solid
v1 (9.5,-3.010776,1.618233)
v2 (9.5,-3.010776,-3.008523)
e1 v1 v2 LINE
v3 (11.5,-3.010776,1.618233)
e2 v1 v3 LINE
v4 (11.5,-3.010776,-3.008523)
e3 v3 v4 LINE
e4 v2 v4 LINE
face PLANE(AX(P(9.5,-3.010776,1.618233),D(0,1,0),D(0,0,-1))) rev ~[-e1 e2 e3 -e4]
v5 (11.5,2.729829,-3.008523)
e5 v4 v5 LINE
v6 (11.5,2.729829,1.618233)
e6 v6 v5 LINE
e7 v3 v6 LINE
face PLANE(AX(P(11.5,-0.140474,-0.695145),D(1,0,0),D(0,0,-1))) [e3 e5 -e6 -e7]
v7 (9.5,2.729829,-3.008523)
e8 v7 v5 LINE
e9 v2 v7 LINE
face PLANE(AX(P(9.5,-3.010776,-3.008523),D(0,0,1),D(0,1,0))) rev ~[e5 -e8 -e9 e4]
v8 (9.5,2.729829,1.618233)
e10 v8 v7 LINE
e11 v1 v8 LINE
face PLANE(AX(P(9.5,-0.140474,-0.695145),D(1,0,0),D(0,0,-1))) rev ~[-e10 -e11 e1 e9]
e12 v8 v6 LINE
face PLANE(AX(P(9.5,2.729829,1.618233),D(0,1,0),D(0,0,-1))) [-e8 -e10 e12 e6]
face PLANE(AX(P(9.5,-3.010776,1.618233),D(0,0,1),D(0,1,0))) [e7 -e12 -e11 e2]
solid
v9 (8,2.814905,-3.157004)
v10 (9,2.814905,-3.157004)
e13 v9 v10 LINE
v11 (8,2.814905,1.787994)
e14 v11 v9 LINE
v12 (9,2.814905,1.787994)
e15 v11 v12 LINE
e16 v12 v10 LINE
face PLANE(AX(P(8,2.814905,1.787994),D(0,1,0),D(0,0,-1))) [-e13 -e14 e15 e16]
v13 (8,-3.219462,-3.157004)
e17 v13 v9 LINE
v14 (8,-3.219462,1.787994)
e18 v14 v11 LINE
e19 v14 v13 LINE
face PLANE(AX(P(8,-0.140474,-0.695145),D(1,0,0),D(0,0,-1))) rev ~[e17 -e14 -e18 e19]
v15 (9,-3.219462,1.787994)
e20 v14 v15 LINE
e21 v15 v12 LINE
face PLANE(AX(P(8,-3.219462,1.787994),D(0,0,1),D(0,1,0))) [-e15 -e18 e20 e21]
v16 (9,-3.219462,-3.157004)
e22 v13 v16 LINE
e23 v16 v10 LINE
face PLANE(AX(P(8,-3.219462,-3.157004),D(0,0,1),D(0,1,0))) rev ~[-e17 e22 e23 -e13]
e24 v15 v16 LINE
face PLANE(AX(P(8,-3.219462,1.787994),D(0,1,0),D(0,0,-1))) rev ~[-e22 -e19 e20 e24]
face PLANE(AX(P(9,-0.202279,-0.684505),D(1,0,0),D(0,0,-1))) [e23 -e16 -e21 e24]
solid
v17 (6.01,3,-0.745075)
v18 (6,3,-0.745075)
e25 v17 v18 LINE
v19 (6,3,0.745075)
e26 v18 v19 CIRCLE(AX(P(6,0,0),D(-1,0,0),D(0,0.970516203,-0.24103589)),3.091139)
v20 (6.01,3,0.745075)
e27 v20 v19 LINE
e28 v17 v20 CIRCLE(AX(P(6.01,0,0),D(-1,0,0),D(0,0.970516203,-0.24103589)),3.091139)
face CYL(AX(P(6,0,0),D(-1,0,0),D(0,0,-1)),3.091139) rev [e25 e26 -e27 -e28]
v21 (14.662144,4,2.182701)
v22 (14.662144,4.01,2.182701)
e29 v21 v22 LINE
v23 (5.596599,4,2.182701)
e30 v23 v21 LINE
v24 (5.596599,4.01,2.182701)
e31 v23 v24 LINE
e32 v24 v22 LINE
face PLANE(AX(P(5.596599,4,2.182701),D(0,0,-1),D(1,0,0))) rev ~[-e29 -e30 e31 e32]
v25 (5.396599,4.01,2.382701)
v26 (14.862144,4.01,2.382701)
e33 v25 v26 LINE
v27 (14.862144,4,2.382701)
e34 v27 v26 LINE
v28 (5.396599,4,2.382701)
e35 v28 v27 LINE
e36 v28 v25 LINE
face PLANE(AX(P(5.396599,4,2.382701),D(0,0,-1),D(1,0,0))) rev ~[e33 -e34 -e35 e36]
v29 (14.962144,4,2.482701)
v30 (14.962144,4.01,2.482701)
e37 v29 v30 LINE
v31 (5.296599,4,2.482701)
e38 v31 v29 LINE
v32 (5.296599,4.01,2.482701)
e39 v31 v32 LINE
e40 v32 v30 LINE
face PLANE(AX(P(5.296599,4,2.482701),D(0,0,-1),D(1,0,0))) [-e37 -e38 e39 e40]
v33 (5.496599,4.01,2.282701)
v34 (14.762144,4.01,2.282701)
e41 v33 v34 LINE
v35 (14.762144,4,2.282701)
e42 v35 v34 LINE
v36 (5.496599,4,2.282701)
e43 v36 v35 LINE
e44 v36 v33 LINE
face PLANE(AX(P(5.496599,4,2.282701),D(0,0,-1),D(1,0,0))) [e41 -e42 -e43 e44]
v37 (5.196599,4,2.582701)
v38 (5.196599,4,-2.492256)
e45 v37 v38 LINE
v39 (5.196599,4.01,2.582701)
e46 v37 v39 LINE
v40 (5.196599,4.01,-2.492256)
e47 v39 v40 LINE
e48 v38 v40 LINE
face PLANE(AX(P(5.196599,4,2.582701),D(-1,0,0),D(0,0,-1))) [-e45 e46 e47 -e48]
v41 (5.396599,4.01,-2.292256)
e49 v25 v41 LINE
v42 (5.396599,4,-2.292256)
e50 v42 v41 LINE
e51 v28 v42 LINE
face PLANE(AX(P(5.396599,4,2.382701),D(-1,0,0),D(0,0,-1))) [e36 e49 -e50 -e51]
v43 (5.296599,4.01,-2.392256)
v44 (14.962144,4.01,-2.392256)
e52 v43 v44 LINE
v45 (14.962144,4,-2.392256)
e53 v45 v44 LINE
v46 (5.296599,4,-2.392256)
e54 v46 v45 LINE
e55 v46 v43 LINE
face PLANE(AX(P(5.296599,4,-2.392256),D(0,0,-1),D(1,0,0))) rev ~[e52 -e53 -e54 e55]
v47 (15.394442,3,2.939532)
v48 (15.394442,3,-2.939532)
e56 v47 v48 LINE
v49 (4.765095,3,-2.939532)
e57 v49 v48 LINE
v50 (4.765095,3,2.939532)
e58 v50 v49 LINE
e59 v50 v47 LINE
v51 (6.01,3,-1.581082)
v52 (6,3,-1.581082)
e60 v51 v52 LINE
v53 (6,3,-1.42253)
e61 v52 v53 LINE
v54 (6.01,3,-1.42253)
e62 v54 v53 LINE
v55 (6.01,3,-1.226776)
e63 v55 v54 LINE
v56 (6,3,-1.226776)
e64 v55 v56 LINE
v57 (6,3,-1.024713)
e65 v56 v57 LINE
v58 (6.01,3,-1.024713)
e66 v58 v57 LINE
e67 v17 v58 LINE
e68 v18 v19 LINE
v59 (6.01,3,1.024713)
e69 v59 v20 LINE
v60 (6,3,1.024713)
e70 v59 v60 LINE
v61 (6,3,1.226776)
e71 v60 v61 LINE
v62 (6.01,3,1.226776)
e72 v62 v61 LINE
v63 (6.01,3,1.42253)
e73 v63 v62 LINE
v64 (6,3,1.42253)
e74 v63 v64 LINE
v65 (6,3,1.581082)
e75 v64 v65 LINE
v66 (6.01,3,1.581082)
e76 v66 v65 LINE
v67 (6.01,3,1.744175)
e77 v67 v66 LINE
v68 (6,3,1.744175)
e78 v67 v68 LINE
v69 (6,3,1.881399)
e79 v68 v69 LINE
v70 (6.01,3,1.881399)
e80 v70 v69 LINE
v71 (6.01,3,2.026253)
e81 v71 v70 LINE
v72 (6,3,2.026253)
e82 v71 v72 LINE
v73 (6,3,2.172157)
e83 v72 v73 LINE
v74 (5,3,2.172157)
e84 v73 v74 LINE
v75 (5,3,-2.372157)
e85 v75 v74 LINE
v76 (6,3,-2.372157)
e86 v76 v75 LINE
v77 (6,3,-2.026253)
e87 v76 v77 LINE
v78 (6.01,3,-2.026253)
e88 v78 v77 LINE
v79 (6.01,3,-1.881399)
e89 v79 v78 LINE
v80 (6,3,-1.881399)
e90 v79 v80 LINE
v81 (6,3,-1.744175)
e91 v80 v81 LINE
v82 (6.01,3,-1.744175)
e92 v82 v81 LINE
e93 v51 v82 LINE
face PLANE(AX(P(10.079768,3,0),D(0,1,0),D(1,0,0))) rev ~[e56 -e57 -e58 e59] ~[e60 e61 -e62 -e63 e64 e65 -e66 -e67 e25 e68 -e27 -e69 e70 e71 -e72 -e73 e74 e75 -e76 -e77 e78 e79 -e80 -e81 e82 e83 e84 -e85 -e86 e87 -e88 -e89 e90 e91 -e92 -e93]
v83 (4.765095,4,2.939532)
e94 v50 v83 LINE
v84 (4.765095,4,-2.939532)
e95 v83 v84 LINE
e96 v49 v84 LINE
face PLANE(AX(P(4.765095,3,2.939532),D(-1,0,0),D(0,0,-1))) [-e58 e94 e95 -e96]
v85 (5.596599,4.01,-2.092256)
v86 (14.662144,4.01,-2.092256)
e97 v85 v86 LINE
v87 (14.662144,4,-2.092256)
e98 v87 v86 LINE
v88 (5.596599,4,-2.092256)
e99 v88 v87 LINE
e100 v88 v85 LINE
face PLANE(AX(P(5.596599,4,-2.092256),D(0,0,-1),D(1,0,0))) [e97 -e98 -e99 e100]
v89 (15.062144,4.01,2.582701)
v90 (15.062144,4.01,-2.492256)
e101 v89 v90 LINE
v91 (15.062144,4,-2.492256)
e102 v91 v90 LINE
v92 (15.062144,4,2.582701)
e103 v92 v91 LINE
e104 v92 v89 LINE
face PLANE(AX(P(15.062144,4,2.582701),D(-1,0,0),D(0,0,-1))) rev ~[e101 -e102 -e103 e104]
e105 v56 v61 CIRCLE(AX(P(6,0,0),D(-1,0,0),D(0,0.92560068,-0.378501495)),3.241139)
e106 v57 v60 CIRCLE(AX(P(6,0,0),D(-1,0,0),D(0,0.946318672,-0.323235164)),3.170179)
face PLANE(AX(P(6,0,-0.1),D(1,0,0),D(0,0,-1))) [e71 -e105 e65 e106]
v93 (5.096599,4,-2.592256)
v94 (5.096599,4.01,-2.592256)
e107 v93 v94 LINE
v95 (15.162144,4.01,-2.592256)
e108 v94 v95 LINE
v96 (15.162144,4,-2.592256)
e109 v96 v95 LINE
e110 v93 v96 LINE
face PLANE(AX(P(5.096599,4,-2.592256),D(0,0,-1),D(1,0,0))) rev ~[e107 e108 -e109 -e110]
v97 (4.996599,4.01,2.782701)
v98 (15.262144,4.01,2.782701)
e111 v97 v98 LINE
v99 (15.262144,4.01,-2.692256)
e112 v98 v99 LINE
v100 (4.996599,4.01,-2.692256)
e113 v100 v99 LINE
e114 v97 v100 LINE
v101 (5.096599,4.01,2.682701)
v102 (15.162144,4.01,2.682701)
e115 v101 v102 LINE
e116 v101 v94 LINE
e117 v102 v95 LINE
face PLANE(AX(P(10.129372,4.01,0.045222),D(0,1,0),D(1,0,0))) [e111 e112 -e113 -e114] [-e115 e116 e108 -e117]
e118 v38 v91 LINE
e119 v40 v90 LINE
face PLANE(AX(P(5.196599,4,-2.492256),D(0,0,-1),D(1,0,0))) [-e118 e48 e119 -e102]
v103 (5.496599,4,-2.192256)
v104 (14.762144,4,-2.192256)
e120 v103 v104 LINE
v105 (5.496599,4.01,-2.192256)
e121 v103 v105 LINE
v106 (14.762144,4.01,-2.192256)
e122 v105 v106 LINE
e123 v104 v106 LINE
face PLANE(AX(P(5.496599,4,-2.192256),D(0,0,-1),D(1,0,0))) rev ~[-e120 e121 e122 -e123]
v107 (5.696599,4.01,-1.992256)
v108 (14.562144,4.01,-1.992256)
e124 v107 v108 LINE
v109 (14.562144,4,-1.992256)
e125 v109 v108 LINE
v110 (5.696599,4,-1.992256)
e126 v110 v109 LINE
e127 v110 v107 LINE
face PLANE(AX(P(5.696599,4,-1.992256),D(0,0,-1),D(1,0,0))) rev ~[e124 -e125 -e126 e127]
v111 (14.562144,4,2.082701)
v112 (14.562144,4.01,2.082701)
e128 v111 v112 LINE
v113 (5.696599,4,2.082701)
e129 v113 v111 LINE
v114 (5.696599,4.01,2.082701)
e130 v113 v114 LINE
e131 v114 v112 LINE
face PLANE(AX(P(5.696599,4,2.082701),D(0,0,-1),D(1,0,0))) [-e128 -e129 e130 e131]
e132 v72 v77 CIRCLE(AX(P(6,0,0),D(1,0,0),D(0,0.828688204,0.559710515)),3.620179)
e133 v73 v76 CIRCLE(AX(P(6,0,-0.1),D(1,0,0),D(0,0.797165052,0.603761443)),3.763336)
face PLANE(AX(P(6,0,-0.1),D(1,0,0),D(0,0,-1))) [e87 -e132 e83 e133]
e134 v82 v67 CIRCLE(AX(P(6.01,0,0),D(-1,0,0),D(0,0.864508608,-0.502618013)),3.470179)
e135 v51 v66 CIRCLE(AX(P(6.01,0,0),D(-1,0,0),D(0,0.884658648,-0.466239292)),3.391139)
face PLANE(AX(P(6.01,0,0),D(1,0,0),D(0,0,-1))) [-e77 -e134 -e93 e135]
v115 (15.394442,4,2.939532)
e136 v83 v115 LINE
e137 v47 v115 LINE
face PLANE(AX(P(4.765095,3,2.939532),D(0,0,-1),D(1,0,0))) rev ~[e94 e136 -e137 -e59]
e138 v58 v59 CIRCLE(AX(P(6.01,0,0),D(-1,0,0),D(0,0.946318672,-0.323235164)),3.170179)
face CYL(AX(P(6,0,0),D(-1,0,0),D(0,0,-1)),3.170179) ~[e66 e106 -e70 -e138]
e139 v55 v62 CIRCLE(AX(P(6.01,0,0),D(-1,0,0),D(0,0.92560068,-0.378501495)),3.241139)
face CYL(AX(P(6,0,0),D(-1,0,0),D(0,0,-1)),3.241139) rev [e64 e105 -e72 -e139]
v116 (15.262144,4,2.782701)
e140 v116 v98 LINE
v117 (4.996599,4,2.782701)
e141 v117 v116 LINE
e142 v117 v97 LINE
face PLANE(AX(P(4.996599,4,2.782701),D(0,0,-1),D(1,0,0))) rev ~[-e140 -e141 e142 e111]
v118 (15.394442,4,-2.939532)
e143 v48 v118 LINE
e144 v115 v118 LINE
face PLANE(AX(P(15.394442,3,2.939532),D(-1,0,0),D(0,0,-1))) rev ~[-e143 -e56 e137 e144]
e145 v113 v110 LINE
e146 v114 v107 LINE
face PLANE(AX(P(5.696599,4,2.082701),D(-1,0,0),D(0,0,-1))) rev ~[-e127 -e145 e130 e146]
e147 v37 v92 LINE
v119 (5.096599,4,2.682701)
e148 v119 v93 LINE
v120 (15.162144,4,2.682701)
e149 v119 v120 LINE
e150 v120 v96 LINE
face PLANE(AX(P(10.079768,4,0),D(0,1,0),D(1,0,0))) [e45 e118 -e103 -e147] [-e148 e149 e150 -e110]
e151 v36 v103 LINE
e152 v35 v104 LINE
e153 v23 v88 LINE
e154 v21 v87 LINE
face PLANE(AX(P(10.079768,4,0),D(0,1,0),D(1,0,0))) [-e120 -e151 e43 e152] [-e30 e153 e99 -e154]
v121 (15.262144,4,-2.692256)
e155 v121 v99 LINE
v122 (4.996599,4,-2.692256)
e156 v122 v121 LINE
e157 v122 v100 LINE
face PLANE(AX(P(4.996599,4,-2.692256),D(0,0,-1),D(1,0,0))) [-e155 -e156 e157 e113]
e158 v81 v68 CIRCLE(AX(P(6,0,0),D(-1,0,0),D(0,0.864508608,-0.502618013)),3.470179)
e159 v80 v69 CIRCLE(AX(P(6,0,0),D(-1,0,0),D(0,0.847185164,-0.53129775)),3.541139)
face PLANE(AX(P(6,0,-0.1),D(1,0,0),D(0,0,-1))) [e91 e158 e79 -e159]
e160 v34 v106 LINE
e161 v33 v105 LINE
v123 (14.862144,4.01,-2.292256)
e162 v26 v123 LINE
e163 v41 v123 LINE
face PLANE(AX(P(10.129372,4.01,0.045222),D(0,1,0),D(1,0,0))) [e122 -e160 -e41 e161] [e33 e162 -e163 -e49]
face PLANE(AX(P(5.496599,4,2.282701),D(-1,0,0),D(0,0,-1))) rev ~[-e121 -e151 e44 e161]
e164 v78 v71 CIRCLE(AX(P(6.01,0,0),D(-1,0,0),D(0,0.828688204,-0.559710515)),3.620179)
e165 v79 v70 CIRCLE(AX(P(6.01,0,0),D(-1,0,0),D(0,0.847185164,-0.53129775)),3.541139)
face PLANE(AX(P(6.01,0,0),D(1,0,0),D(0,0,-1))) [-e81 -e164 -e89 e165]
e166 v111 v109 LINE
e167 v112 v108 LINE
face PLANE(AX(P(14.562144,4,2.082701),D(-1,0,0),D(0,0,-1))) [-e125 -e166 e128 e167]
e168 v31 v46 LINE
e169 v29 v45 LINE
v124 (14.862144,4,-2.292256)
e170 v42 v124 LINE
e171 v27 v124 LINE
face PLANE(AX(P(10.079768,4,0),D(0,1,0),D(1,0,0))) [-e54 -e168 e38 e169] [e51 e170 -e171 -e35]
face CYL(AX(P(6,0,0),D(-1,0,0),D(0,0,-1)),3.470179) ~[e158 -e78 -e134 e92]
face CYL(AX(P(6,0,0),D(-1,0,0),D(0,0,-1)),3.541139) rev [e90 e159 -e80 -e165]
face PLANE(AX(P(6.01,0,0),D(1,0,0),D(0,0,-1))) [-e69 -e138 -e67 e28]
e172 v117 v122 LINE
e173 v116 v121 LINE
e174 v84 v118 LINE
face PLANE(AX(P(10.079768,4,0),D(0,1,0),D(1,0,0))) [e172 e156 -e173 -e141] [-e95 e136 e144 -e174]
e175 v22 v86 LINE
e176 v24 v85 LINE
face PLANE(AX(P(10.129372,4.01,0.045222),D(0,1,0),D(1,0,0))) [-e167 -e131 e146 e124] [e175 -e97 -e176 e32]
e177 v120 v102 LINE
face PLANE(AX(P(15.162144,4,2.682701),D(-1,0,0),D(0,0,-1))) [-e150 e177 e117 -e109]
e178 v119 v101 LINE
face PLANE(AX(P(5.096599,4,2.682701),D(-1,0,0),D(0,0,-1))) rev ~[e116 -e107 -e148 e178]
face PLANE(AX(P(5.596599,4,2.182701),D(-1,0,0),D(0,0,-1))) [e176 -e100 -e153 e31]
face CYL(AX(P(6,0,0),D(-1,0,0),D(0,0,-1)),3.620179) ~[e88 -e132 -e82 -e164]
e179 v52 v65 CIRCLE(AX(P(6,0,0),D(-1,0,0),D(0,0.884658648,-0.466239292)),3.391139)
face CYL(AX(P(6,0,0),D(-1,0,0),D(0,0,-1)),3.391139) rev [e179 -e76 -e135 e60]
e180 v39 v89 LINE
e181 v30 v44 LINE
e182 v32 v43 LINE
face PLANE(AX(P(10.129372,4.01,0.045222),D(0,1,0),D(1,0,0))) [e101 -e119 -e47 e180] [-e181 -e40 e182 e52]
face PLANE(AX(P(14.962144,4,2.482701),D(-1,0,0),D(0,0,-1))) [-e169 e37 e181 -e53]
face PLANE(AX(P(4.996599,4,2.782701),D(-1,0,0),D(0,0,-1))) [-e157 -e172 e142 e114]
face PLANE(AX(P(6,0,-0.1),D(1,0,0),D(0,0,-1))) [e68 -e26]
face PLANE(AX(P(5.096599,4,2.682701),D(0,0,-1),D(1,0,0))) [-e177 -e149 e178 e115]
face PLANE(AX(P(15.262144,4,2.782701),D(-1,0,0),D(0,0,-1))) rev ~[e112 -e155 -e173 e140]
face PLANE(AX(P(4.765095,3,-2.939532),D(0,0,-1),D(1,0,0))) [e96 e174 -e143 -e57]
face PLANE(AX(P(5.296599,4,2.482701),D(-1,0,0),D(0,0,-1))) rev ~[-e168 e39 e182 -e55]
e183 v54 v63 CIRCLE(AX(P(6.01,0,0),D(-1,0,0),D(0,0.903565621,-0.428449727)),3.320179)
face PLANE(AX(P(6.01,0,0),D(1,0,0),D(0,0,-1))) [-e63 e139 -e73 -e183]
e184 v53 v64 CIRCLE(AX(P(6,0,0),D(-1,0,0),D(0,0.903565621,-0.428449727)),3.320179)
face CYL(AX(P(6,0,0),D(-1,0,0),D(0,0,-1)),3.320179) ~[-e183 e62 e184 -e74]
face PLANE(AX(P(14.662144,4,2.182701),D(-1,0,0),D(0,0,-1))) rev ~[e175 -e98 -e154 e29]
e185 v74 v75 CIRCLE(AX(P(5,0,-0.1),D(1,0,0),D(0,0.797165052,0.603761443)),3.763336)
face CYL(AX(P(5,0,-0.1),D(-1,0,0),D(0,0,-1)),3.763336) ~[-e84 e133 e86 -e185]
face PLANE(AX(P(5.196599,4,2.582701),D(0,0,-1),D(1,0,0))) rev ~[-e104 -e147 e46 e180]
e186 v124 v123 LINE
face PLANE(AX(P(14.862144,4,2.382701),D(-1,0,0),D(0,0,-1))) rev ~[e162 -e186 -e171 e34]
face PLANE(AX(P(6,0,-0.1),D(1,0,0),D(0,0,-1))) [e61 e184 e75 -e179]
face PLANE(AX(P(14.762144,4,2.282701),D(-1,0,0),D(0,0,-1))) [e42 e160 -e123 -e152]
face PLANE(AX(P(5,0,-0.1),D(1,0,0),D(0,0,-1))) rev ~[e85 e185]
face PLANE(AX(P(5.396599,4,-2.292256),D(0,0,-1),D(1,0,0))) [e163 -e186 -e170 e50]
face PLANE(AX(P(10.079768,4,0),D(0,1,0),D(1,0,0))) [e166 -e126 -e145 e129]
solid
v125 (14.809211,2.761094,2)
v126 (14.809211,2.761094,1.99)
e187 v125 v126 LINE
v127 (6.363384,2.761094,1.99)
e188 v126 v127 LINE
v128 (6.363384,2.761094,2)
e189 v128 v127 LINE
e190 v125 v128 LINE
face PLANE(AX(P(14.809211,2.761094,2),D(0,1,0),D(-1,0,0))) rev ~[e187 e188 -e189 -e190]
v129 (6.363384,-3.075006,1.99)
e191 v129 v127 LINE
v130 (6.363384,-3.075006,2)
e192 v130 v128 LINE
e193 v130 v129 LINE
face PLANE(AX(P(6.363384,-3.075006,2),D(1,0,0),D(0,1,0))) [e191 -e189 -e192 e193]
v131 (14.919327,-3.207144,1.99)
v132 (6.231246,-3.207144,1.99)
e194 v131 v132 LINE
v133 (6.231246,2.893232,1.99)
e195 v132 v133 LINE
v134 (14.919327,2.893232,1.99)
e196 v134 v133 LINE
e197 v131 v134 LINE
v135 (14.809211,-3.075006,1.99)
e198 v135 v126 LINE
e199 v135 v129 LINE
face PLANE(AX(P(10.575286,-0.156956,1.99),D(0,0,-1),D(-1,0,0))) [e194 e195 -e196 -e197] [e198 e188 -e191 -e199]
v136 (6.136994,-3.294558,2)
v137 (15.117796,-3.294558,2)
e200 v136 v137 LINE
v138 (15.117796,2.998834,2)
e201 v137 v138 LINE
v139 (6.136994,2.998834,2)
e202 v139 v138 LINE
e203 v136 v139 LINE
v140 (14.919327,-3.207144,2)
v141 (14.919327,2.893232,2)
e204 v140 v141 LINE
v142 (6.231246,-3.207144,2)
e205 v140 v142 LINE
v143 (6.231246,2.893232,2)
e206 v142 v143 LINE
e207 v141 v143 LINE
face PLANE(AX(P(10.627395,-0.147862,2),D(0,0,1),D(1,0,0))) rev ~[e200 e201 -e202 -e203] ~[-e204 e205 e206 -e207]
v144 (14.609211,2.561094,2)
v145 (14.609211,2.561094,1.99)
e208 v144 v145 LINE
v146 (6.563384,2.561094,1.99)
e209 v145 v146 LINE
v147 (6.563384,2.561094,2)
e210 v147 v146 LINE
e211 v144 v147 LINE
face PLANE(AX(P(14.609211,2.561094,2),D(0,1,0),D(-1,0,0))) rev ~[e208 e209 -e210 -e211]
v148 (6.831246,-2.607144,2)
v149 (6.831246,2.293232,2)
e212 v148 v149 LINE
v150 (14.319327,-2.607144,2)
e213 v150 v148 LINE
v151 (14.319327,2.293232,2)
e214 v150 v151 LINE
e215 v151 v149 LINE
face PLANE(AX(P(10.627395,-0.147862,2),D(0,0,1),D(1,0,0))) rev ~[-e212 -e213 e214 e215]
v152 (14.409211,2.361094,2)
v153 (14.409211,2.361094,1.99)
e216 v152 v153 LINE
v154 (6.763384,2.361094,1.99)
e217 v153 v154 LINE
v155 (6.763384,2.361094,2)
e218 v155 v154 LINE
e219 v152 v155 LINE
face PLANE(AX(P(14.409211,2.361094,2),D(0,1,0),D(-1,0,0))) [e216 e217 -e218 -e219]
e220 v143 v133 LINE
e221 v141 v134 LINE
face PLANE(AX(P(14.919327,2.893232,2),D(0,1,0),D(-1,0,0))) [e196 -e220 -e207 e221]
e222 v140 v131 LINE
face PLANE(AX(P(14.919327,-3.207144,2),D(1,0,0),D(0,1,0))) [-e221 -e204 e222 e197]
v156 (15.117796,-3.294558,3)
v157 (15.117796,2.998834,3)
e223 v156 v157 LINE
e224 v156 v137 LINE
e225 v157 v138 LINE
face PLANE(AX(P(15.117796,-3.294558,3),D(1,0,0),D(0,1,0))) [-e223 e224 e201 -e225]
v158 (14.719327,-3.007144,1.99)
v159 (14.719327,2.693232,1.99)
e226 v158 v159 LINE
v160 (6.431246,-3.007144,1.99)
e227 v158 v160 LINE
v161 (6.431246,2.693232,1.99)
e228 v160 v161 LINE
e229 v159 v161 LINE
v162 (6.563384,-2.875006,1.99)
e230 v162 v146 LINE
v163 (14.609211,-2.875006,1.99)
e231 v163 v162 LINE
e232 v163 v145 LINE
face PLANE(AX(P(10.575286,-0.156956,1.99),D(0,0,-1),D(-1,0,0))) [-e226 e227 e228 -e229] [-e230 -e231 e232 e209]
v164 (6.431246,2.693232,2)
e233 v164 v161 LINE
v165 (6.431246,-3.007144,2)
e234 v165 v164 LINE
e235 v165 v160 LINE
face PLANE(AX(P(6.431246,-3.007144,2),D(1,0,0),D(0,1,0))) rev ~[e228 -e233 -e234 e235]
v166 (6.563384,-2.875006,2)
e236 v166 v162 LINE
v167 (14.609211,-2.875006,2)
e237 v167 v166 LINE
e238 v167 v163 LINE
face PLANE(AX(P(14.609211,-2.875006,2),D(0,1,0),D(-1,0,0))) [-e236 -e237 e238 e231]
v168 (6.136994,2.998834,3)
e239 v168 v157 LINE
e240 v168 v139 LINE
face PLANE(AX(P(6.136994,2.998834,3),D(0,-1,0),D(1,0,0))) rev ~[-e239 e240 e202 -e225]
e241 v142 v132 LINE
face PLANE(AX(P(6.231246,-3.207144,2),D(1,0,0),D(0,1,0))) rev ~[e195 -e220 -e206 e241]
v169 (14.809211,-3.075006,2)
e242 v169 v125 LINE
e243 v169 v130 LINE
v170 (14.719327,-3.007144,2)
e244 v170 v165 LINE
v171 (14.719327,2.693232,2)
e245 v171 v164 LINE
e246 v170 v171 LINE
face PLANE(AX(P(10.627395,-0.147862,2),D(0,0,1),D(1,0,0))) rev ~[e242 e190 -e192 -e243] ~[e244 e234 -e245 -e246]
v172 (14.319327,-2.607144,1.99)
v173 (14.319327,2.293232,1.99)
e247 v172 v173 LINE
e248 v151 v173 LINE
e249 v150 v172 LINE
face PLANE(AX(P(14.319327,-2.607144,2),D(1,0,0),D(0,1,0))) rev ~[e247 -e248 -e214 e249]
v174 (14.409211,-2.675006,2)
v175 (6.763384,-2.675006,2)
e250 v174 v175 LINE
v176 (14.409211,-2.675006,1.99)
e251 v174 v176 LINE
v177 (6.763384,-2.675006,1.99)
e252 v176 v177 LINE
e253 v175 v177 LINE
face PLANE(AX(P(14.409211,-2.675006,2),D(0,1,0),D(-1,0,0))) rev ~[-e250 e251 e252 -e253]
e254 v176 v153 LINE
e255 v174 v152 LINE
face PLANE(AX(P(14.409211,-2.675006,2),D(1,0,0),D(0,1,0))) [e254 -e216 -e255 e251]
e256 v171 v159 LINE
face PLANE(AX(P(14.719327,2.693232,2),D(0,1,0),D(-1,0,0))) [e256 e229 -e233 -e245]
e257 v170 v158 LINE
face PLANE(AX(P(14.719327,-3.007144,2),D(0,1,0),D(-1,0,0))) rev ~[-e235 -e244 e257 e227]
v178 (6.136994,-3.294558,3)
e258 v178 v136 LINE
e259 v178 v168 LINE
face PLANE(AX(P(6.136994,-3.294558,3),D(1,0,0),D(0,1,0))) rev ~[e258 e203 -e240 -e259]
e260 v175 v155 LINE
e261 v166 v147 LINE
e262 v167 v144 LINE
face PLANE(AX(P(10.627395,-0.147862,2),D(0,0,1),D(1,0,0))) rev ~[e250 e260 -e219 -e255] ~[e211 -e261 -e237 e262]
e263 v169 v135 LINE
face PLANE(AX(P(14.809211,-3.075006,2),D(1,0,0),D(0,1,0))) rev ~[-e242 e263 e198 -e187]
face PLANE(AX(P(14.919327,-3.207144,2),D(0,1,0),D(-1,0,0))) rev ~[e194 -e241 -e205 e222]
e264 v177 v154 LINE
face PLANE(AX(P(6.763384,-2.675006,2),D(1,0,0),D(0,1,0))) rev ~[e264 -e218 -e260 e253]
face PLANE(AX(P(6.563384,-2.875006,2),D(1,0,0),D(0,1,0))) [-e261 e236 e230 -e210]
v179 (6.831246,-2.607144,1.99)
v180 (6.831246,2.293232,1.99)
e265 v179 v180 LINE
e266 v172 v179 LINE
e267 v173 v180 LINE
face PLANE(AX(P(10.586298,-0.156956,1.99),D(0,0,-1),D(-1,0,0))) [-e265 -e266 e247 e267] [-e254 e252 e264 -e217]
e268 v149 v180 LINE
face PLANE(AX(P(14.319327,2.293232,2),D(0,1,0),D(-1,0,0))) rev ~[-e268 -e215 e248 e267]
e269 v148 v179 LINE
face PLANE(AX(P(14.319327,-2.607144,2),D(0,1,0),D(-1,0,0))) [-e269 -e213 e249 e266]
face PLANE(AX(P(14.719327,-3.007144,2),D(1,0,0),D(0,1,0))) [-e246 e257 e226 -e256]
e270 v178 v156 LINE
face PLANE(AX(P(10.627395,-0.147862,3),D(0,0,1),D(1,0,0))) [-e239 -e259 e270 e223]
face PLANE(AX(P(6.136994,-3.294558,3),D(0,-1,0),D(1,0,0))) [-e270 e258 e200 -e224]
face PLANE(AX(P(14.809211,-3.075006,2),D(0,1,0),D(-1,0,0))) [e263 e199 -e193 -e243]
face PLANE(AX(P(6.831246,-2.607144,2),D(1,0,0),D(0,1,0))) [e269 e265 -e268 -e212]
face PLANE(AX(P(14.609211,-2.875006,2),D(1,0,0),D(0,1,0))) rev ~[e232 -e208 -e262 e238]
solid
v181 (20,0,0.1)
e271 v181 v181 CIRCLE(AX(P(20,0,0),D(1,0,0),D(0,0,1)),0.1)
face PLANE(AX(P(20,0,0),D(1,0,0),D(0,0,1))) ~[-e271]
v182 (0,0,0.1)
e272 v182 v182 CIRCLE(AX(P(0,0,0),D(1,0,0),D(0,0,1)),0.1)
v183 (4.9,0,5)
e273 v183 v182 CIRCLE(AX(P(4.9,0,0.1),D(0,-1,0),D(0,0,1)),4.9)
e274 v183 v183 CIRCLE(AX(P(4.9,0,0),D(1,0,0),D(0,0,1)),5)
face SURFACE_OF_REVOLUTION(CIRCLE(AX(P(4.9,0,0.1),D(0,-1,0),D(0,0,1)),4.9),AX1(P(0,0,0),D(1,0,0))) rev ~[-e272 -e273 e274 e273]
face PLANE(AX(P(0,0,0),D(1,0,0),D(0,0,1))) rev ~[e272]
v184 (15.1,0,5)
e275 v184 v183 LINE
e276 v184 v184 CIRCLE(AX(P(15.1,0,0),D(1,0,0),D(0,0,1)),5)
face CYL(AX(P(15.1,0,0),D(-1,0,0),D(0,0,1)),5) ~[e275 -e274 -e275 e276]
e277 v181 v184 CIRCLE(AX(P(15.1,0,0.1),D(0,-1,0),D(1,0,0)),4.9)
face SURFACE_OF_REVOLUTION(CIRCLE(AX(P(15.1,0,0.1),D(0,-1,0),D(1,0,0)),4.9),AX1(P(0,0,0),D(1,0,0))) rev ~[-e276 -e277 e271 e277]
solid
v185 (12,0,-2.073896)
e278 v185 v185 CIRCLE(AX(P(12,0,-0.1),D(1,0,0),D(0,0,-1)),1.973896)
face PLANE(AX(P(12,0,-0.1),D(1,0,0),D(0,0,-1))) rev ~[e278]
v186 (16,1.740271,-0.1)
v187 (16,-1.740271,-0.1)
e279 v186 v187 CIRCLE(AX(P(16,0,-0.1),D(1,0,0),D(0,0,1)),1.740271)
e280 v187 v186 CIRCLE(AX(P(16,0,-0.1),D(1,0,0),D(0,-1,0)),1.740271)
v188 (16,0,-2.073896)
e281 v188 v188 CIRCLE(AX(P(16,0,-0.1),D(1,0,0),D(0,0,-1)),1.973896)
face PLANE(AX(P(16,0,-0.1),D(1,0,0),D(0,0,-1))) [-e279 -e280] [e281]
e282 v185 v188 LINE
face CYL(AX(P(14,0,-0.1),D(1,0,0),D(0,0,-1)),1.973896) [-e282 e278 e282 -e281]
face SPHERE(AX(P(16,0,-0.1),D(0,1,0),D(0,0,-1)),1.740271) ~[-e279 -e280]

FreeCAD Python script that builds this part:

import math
import FreeCAD as App
import Part
import Sketcher
Q = App.Units.Quantity


def add_polygon(sketch, points):
    """Adds a closed chain of lines whose ends are joined by coincident constraints."""
    first, n = sketch.GeometryCount, len(points)
    for a, b in zip(points, points[1:] + points[:1]):
        sketch.addGeometry(Part.LineSegment(App.Vector(*a, 0), App.Vector(*b, 0)), False)
    for i in range(n):
        sketch.addConstraint(Sketcher.Constraint("Coincident", first + i, 2, first + (i + 1) % n, 1))

doc = App.newDocument("Part")
params = doc.addObject("Spreadsheet::Sheet", "Params")
for row, (alias, value) in enumerate([
    ("sketch1_radius", "4.9 mm"),
    ("sketch1_width", "20 mm"),
    ("sketch1_height", "0.1 mm"),
    ("revolution_angle", "360 deg"),
    ("pad1_length", "1 mm"),
    ("pad2_length", "1 mm"),
    ("pad3_length", "0.01 mm"),
    ("pad4_length", "1 mm"),
    ("pad5_length", "0.01 mm"),
    ("pad6_length", "0.01 mm"),
    ("pad7_length", "1 mm"),
    ("pad8_length", "2 mm"),
    ("pad9_length", "4 mm"),
    ("revolution2_angle", "360 deg"),
], start=1):
    params.set(f"A{row}", alias)
    params.set(f"B{row}", "=" + value)
    params.setAlias(f"B{row}", alias)

body = doc.addObject("PartDesign::Body", "Body")

sketch1 = doc.addObject("Sketcher::SketchObject", "Sketch")
body.addObject(sketch1)
sketch1.AttachmentSupport = (doc.XZ_Plane, [""])
sketch1.MapMode = "FlatFace"
sketch1.addGeometry(Part.LineSegment(App.Vector(0, 0, 0), App.Vector(20, 0, 0)), False)
sketch1.addGeometry(Part.LineSegment(App.Vector(20, 0, 0), App.Vector(20, -0.1, 0)), False)
sketch1.addGeometry(Part.ArcOfCircle(Part.Circle(App.Vector(15.1, -0.1, 0), App.Vector(0, 0, 1), 4.9), math.radians(-90), math.radians(0)), False)
sketch1.addGeometry(Part.LineSegment(App.Vector(15.1, -5, 0), App.Vector(4.9, -5, 0)), False)
sketch1.addGeometry(Part.ArcOfCircle(Part.Circle(App.Vector(4.9, -0.1, 0), App.Vector(0, 0, 1), 4.9), math.radians(180), math.radians(270)), False)
sketch1.addGeometry(Part.LineSegment(App.Vector(0, -0.1, 0), App.Vector(0, 0, 0)), False)
sketch1.addConstraint(Sketcher.Constraint("Coincident", 0, 2, 1, 1))
sketch1.addConstraint(Sketcher.Constraint("Tangent", 1, 2, 2, 2))
sketch1.addConstraint(Sketcher.Constraint("Tangent", 2, 1, 3, 1))
sketch1.addConstraint(Sketcher.Constraint("Tangent", 3, 2, 4, 2))
sketch1.addConstraint(Sketcher.Constraint("Tangent", 4, 1, 5, 1))
sketch1.addConstraint(Sketcher.Constraint("Coincident", 5, 2, 0, 1))
sketch1.addConstraint(Sketcher.Constraint("Horizontal", 0))
sketch1.addConstraint(Sketcher.Constraint("Vertical", 1))
sketch1.addConstraint(Sketcher.Constraint("Horizontal", 3))
sketch1.addConstraint(Sketcher.Constraint("Vertical", 5))
sketch1.addConstraint(Sketcher.Constraint("Coincident", 5, 2, -1, 1))
sketch1.addConstraint(Sketcher.Constraint("Equal", 2, 4))
sketch1.addConstraint(Sketcher.Constraint("Radius", 2, Q("4.9 mm")))
sketch1.addConstraint(Sketcher.Constraint("DistanceX", 0, 1, 0, 2, Q("20 mm")))
sketch1.addConstraint(Sketcher.Constraint("DistanceY", 1, 2, 1, 1, Q("0.1 mm")))
sketch1.setExpression("Constraints[12]", "Params.sketch1_radius")
sketch1.setExpression("Constraints[13]", "Params.sketch1_width")
sketch1.setExpression("Constraints[14]", "Params.sketch1_height")
revolution = doc.addObject("PartDesign::Revolution", "Revolution")
body.addObject(revolution)
revolution.Profile = sketch1
revolution.ReferenceAxis = (sketch1, ["H_Axis"])
revolution.setExpression("Angle", "Params.revolution_angle")
body2 = doc.addObject("PartDesign::Body", "Body001")

sketch2 = doc.addObject("Sketcher::SketchObject", "Sketch001")
body2.addObject(sketch2)
sketch2.AttachmentSupport = (doc.getObject("YZ_Plane001"), [""])
sketch2.MapMode = "FlatFace"
sketch2.AttachmentOffset = App.Placement(App.Vector(0, 0, 5), App.Rotation())
sketch2.addGeometry(Part.Circle(App.Vector(0, -0.1, 0), App.Vector(0, 0, 1), 3.8), False)
sketch2.addConstraint(Sketcher.Constraint("PointOnObject", 0, 3, -2))
sketch2.addConstraint(Sketcher.Constraint("DistanceY", 0, 3, -1, 1, Q("0.1 mm")))
sketch2.addConstraint(Sketcher.Constraint("Diameter", 0, Q("7.526672 mm")))
pad1 = doc.addObject("PartDesign::Pad", "Pad")
body2.addObject(pad1)
pad1.Profile = sketch2
pad1.setExpression("Length", "Params.pad1_length")
body3 = doc.addObject("PartDesign::Body", "Body002")

sketch3 = doc.addObject("Sketcher::SketchObject", "Sketch002")
body3.addObject(sketch3)
sketch3.AttachmentSupport = (doc.getObject("XY_Plane002"), [""])
sketch3.MapMode = "FlatFace"
sketch3.AttachmentOffset = App.Placement(App.Vector(0, 0, 3), App.Rotation())
add_polygon(sketch3, [(6, 3), (6, -3), (15, -3), (15, 3)])
sketch3.addConstraint(Sketcher.Constraint("Vertical", 0))
sketch3.addConstraint(Sketcher.Constraint("Horizontal", 1))
sketch3.addConstraint(Sketcher.Constraint("Vertical", 2))
sketch3.addConstraint(Sketcher.Constraint("Horizontal", 3))
sketch3.addConstraint(Sketcher.Constraint("DistanceX", 1, 1, 1, 2, Q("8.980803 mm")))
sketch3.addConstraint(Sketcher.Constraint("DistanceY", 0, 2, 0, 1, Q("6.293392 mm")))
sketch3.addConstraint(Sketcher.Constraint("DistanceX", -1, 1, 0, 2, Q("6.136994 mm")))
sketch3.addConstraint(Sketcher.Constraint("DistanceY", 0, 2, -1, 1, Q("3.294558 mm")))
pad2 = doc.addObject("PartDesign::Pad", "Pad001")
body3.addObject(pad2)
pad2.Profile = sketch3
pad2.setExpression("Length", "Params.pad2_length")
pad2.Reversed = True

sketch4 = doc.addObject("Sketcher::SketchObject", "Sketch003")
body3.addObject(sketch4)
sketch4.AttachmentSupport = (doc.getObject("XY_Plane002"), [""])
sketch4.MapMode = "FlatFace"
sketch4.AttachmentOffset = App.Placement(App.Vector(0, 0, 2), App.Rotation())
add_polygon(sketch4, [(14.9, 2.9), (14.9, -3.2), (6.2, -3.2), (6.2, 2.9)])
add_polygon(sketch4, [(6.4, -3.1), (14.8, -3.1), (14.8, 2.8), (6.4, 2.8)])
add_polygon(sketch4, [(14.7, 2.7), (14.7, -3), (6.4, -3), (6.4, 2.7)])
add_polygon(sketch4, [(6.6, -2.9), (14.6, -2.9), (14.6, 2.6), (6.6, 2.6)])
add_polygon(sketch4, [(14.4, 2.4), (14.4, -2.7), (6.8, -2.7), (6.8, 2.4)])
add_polygon(sketch4, [(6.8, -2.6), (14.3, -2.6), (14.3, 2.3), (6.8, 2.3)])
sketch4.addConstraint(Sketcher.Constraint("Vertical", 0))
sketch4.addConstraint(Sketcher.Constraint("Horizontal", 1))
sketch4.addConstraint(Sketcher.Constraint("Vertical", 2))
sketch4.addConstraint(Sketcher.Constraint("Horizontal", 3))
sketch4.addConstraint(Sketcher.Constraint("Horizontal", 4))
sketch4.addConstraint(Sketcher.Constraint("Vertical", 5))
sketch4.addConstraint(Sketcher.Constraint("Horizontal", 6))
sketch4.addConstraint(Sketcher.Constraint("Vertical", 7))
sketch4.addConstraint(Sketcher.Constraint("Vertical", 8))
sketch4.addConstraint(Sketcher.Constraint("Horizontal", 9))
sketch4.addConstraint(Sketcher.Constraint("Vertical", 10))
sketch4.addConstraint(Sketcher.Constraint("Horizontal", 11))
sketch4.addConstraint(Sketcher.Constraint("Horizontal", 12))
sketch4.addConstraint(Sketcher.Constraint("Vertical", 13))
sketch4.addConstraint(Sketcher.Constraint("Horizontal", 14))
sketch4.addConstraint(Sketcher.Constraint("Vertical", 15))
sketch4.addConstraint(Sketcher.Constraint("Vertical", 16))
sketch4.addConstraint(Sketcher.Constraint("Horizontal", 17))
sketch4.addConstraint(Sketcher.Constraint("Vertical", 18))
sketch4.addConstraint(Sketcher.Constraint("Horizontal", 19))
sketch4.addConstraint(Sketcher.Constraint("Horizontal", 20))
sketch4.addConstraint(Sketcher.Constraint("Vertical", 21))
sketch4.addConstraint(Sketcher.Constraint("Horizontal", 22))
sketch4.addConstraint(Sketcher.Constraint("Vertical", 23))
sketch4.addConstraint(Sketcher.Constraint("DistanceX", 8, 2, 0, 2, Q("0.2 mm")))
sketch4.addConstraint(Sketcher.Constraint("DistanceY", 0, 2, 8, 2, Q("0.2 mm")))
sketch4.addConstraint(Sketcher.Constraint("DistanceX", 1, 2, 9, 2, Q("0.2 mm")))
sketch4.addConstraint(Sketcher.Constraint("DistanceY", 10, 2, 2, 2, Q("0.2 mm")))
sketch4.addConstraint(Sketcher.Constraint("DistanceX", 12, 2, 4, 2, Q("0.2 mm")))
sketch4.addConstraint(Sketcher.Constraint("DistanceY", 4, 2, 12, 2, Q("0.2 mm")))
sketch4.addConstraint(Sketcher.Constraint("DistanceY", 13, 2, 5, 2, Q("0.2 mm")))
sketch4.addConstraint(Sketcher.Constraint("DistanceX", 6, 2, 14, 2, Q("0.2 mm")))
sketch4.addConstraint(Sketcher.Constraint("DistanceX", 16, 2, 12, 2, Q("0.2 mm")))
sketch4.addConstraint(Sketcher.Constraint("DistanceY", 12, 2, 16, 2, Q("0.2 mm")))
sketch4.addConstraint(Sketcher.Constraint("DistanceX", 15, 2, 17, 2, Q("0.2 mm")))
sketch4.addConstraint(Sketcher.Constraint("DistanceY", 18, 2, 14, 2, Q("0.2 mm")))
sketch4.addConstraint(Sketcher.Constraint("DistanceX", 20, 2, 8, 2, Q("0.4 mm")))
sketch4.addConstraint(Sketcher.Constraint("DistanceY", 8, 2, 20, 2, Q("0.4 mm")))
sketch4.addConstraint(Sketcher.Constraint("DistanceY", 21, 2, 11, 2, Q("0.4 mm")))
sketch4.addConstraint(Sketcher.Constraint("DistanceX", 10, 2, 22, 2, Q("0.4 mm")))
sketch4.addConstraint(Sketcher.Constraint("DistanceY", 5, 1, 5, 2, Q("5.8361 mm")))
sketch4.addConstraint(Sketcher.Constraint("DistanceX", 1, 2, 1, 1, Q("8.688081 mm")))
sketch4.addConstraint(Sketcher.Constraint("DistanceX", 4, 1, 4, 2, Q("8.445827 mm")))
sketch4.addConstraint(Sketcher.Constraint("DistanceY", 0, 2, 0, 1, Q("6.100376 mm")))
sketch4.addConstraint(Sketcher.Constraint("DistanceX", -1, 1, 4, 2, Q("14.809211 mm")))
sketch4.addConstraint(Sketcher.Constraint("DistanceY", 0, 2, 4, 2, Q("0.132138 mm")))
sketch4.addConstraint(Sketcher.Constraint("DistanceX", 2, 2, 6, 2, Q("0.132138 mm")))
sketch4.addConstraint(Sketcher.Constraint("DistanceY", 0, 2, -1, 1, Q("3.207144 mm")))
pad3 = doc.addObject("PartDesign::Pad", "Pad002")
body3.addObject(pad3)
pad3.Profile = sketch4
pad3.setExpression("Length", "Params.pad3_length")
pad3.Reversed = True
body4 = doc.addObject("PartDesign::Body", "Body003")

sketch5 = doc.addObject("Sketcher::SketchObject", "Sketch004")
body4.addObject(sketch5)
sketch5.AttachmentSupport = (doc.getObject("XZ_Plane003"), [""])
sketch5.MapMode = "FlatFace"
sketch5.AttachmentOffset = App.Placement(App.Vector(0, 0, -3), App.Rotation())
add_polygon(sketch5, [(5, -3), (5, 3), (15, 3), (15, -3)])
sketch5.addConstraint(Sketcher.Constraint("Vertical", 0))
sketch5.addConstraint(Sketcher.Constraint("Horizontal", 1))
sketch5.addConstraint(Sketcher.Constraint("Vertical", 2))
sketch5.addConstraint(Sketcher.Constraint("Horizontal", 3))
sketch5.addConstraint(Sketcher.Constraint("DistanceX", 1, 1, 1, 2, Q("10.629347 mm")))
sketch5.addConstraint(Sketcher.Constraint("DistanceY", 0, 1, 0, 2, Q("5.879064 mm")))
sketch5.addConstraint(Sketcher.Constraint("DistanceY", -1, 1, 0, 2, Q("2.939532 mm")))
sketch5.addConstraint(Sketcher.Constraint("DistanceX", -1, 1, 1, 2, Q("15.394442 mm")))
pad4 = doc.addObject("PartDesign::Pad", "Pad003")
body4.addObject(pad4)
pad4.Profile = sketch5
pad4.setExpression("Length", "Params.pad4_length")
pad4.Reversed = True

sketch6 = doc.addObject("Sketcher::SketchObject", "Sketch005")
body4.addObject(sketch6)
sketch6.AttachmentSupport = (doc.getObject("XZ_Plane003"), [""])
sketch6.MapMode = "FlatFace"
sketch6.AttachmentOffset = App.Placement(App.Vector(0, 0, -4), App.Rotation())
add_polygon(sketch6, [(5, -2.7), (5, 2.8), (15.3, 2.8), (15.3, -2.7)])
add_polygon(sketch6, [(15.2, 2.7), (5.1, 2.7), (5.1, -2.6), (15.2, -2.6)])
add_polygon(sketch6, [(5.2, -2.5), (5.2, 2.6), (15.1, 2.6), (15.1, -2.5)])
add_polygon(sketch6, [(15, 2.5), (5.3, 2.5), (5.3, -2.4), (15, -2.4)])
add_polygon(sketch6, [(5.4, -2.3), (5.4, 2.4), (14.9, 2.4), (14.9, -2.3)])
add_polygon(sketch6, [(14.8, 2.3), (5.5, 2.3), (5.5, -2.2), (14.8, -2.2)])
add_polygon(sketch6, [(5.6, -2.1), (5.6, 2.2), (14.7, 2.2), (14.7, -2.1)])
add_polygon(sketch6, [(14.6, 2.1), (5.7, 2.1), (5.7, -2), (14.6, -2)])
sketch6.addConstraint(Sketcher.Constraint("Vertical", 0))
sketch6.addConstraint(Sketcher.Constraint("Horizontal", 1))
sketch6.addConstraint(Sketcher.Constraint("Vertical", 2))
sketch6.addConstraint(Sketcher.Constraint("Horizontal", 3))
sketch6.addConstraint(Sketcher.Constraint("Horizontal", 4))
sketch6.addConstraint(Sketcher.Constraint("Vertical", 5))
sketch6.addConstraint(Sketcher.Constraint("Horizontal", 6))
sketch6.addConstraint(Sketcher.Constraint("Vertical", 7))
sketch6.addConstraint(Sketcher.Constraint("Vertical", 8))
sketch6.addConstraint(Sketcher.Constraint("Horizontal", 9))
sketch6.addConstraint(Sketcher.Constraint("Vertical", 10))
sketch6.addConstraint(Sketcher.Constraint("Horizontal", 11))
sketch6.addConstraint(Sketcher.Constraint("Horizontal", 12))
sketch6.addConstraint(Sketcher.Constraint("Vertical", 13))
sketch6.addConstraint(Sketcher.Constraint("Horizontal", 14))
sketch6.addConstraint(Sketcher.Constraint("Vertical", 15))
sketch6.addConstraint(Sketcher.Constraint("Vertical", 16))
sketch6.addConstraint(Sketcher.Constraint("Horizontal", 17))
sketch6.addConstraint(Sketcher.Constraint("Vertical", 18))
sketch6.addConstraint(Sketcher.Constraint("Horizontal", 19))
sketch6.addConstraint(Sketcher.Constraint("Horizontal", 20))
sketch6.addConstraint(Sketcher.Constraint("Vertical", 21))
sketch6.addConstraint(Sketcher.Constraint("Horizontal", 22))
sketch6.addConstraint(Sketcher.Constraint("Vertical", 23))
sketch6.addConstraint(Sketcher.Constraint("Vertical", 24))
sketch6.addConstraint(Sketcher.Constraint("Horizontal", 25))
sketch6.addConstraint(Sketcher.Constraint("Vertical", 26))
sketch6.addConstraint(Sketcher.Constraint("Horizontal", 27))
sketch6.addConstraint(Sketcher.Constraint("Horizontal", 28))
sketch6.addConstraint(Sketcher.Constraint("Vertical", 29))
sketch6.addConstraint(Sketcher.Constraint("Horizontal", 30))
sketch6.addConstraint(Sketcher.Constraint("Vertical", 31))
sketch6.addConstraint(Sketcher.Constraint("DistanceX", 0, 2, 4, 2, Q("0.1 mm")))
sketch6.addConstraint(Sketcher.Constraint("DistanceY", 4, 2, 0, 2, Q("0.1 mm")))
sketch6.addConstraint(Sketcher.Constraint("DistanceY", 3, 2, 5, 2, Q("0.1 mm")))
sketch6.addConstraint(Sketcher.Constraint("DistanceX", 6, 2, 2, 2, Q("0.1 mm")))
sketch6.addConstraint(Sketcher.Constraint("DistanceX", 4, 2, 8, 2, Q("0.1 mm")))
sketch6.addConstraint(Sketcher.Constraint("DistanceY", 8, 2, 4, 2, Q("0.1 mm")))
sketch6.addConstraint(Sketcher.Constraint("DistanceX", 9, 2, 7, 2, Q("0.1 mm")))
sketch6.addConstraint(Sketcher.Constraint("DistanceY", 6, 2, 10, 2, Q("0.1 mm")))
sketch6.addConstraint(Sketcher.Constraint("DistanceX", 8, 2, 12, 2, Q("0.1 mm")))
sketch6.addConstraint(Sketcher.Constraint("DistanceY", 12, 2, 8, 2, Q("0.1 mm")))
sketch6.addConstraint(Sketcher.Constraint("DistanceY", 11, 2, 13, 2, Q("0.1 mm")))
sketch6.addConstraint(Sketcher.Constraint("DistanceX", 14, 2, 10, 2, Q("0.1 mm")))
sketch6.addConstraint(Sketcher.Constraint("DistanceX", 12, 2, 16, 2, Q("0.1 mm")))
sketch6.addConstraint(Sketcher.Constraint("DistanceY", 16, 2, 12, 2, Q("0.1 mm")))
sketch6.addConstraint(Sketcher.Constraint("DistanceX", 17, 2, 15, 2, Q("0.1 mm")))
sketch6.addConstraint(Sketcher.Constraint("DistanceY", 14, 2, 18, 2, Q("0.1 mm")))
sketch6.addConstraint(Sketcher.Constraint("DistanceX", 16, 2, 20, 2, Q("0.1 mm")))
sketch6.addConstraint(Sketcher.Constraint("DistanceY", 20, 2, 16, 2, Q("0.1 mm")))
sketch6.addConstraint(Sketcher.Constraint("DistanceY", 19, 2, 21, 2, Q("0.1 mm")))
sketch6.addConstraint(Sketcher.Constraint("DistanceX", 22, 2, 18, 2, Q("0.1 mm")))
sketch6.addConstraint(Sketcher.Constraint("DistanceX", 20, 2, 24, 2, Q("0.1 mm")))
sketch6.addConstraint(Sketcher.Constraint("DistanceY", 24, 2, 20, 2, Q("0.1 mm")))
sketch6.addConstraint(Sketcher.Constraint("DistanceX", 25, 2, 23, 2, Q("0.1 mm")))
sketch6.addConstraint(Sketcher.Constraint("DistanceY", 22, 2, 26, 2, Q("0.1 mm")))
sketch6.addConstraint(Sketcher.Constraint("DistanceX", 24, 2, 28, 2, Q("0.1 mm")))
sketch6.addConstraint(Sketcher.Constraint("DistanceY", 28, 2, 24, 2, Q("0.1 mm")))
sketch6.addConstraint(Sketcher.Constraint("DistanceY", 27, 2, 29, 2, Q("0.1 mm")))
sketch6.addConstraint(Sketcher.Constraint("DistanceX", 30, 2, 26, 2, Q("0.1 mm")))
sketch6.addConstraint(Sketcher.Constraint("DistanceX", -1, 1, 0, 2, Q("4.996599 mm")))
sketch6.addConstraint(Sketcher.Constraint("DistanceY", -1, 1, 0, 2, Q("2.782701 mm")))
sketch6.addConstraint(Sketcher.Constraint("DistanceX", 1, 1, 1, 2, Q("10.265545 mm")))
sketch6.addConstraint(Sketcher.Constraint("DistanceY", 0, 1, 0, 2, Q("5.474957 mm")))
pad5 = doc.addObject("PartDesign::Pad", "Pad004")
body4.addObject(pad5)
pad5.Profile = sketch6
pad5.setExpression("Length", "Params.pad5_length")
pad5.Reversed = True
doc.recompute()

boolean = doc.addObject("PartDesign::Boolean", "Boolean")
body2.addObject(boolean)
boolean.Type = "Fuse"
boolean.addObjects([body4])

sketch7 = doc.addObject("Sketcher::SketchObject", "Sketch006")
body2.addObject(sketch7)
sketch7.AttachmentSupport = (doc.getObject("YZ_Plane001"), [""])
sketch7.MapMode = "FlatFace"
sketch7.AttachmentOffset = App.Placement(App.Vector(0, 0, 6), App.Rotation())
sketch7.addGeometry(Part.Circle(App.Vector(0, 0, 0), App.Vector(0, 0, 1), 3.6), False)
sketch7.addGeometry(Part.Circle(App.Vector(0, 0, 0), App.Vector(0, 0, 1), 3.5), False)
sketch7.addGeometry(Part.Circle(App.Vector(0, 0, 0), App.Vector(0, 0, 1), 3.5), False)
sketch7.addGeometry(Part.Circle(App.Vector(0, 0, 0), App.Vector(0, 0, 1), 3.4), False)
sketch7.addGeometry(Part.Circle(App.Vector(0, 0, 0), App.Vector(0, 0, 1), 3.3), False)
sketch7.addGeometry(Part.Circle(App.Vector(0, 0, 0), App.Vector(0, 0, 1), 3.2), False)
sketch7.addGeometry(Part.Circle(App.Vector(0, 0, 0), App.Vector(0, 0, 1), 3.2), False)
sketch7.addGeometry(Part.Circle(App.Vector(0, 0, 0), App.Vector(0, 0, 1), 3.1), False)
sketch7.addConstraint(Sketcher.Constraint("Coincident", 0, 3, -1, 1))
sketch7.addConstraint(Sketcher.Constraint("Coincident", 1, 3, -1, 1))
sketch7.addConstraint(Sketcher.Constraint("Coincident", 2, 3, -1, 1))
sketch7.addConstraint(Sketcher.Constraint("Coincident", 3, 3, -1, 1))
sketch7.addConstraint(Sketcher.Constraint("Coincident", 4, 3, -1, 1))
sketch7.addConstraint(Sketcher.Constraint("Coincident", 5, 3, -1, 1))
sketch7.addConstraint(Sketcher.Constraint("Coincident", 6, 3, -1, 1))
sketch7.addConstraint(Sketcher.Constraint("Coincident", 7, 3, -1, 1))
sketch7.addConstraint(Sketcher.Constraint("Diameter", 0, Q("7.240359 mm")))
sketch7.addConstraint(Sketcher.Constraint("Diameter", 2, Q("6.940359 mm")))
sketch7.addConstraint(Sketcher.Constraint("Diameter", 4, Q("6.640359 mm")))
sketch7.addConstraint(Sketcher.Constraint("Diameter", 6, Q("6.340359 mm")))
sketch7.addConstraint(Sketcher.Constraint("Diameter", 1, Q("7.082277 mm")))
sketch7.addConstraint(Sketcher.Constraint("Diameter", 3, Q("6.782277 mm")))
sketch7.addConstraint(Sketcher.Constraint("Diameter", 5, Q("6.482277 mm")))
sketch7.addConstraint(Sketcher.Constraint("Diameter", 7, Q("6.182277 mm")))
pad6 = doc.addObject("PartDesign::Pad", "Pad005")
body2.addObject(pad6)
pad6.Profile = sketch7
pad6.setExpression("Length", "Params.pad6_length")
body5 = doc.addObject("PartDesign::Body", "Body004")

sketch8 = doc.addObject("Sketcher::SketchObject", "Sketch007")
body5.addObject(sketch8)
sketch8.AttachmentSupport = (doc.getObject("YZ_Plane004"), [""])
sketch8.MapMode = "FlatFace"
sketch8.AttachmentOffset = App.Placement(App.Vector(0, 0, 8), App.Rotation())
add_polygon(sketch8, [(2.8, 1.8), (-3.2, 1.8), (-3.2, -3.2), (2.8, -3.2)])
sketch8.addConstraint(Sketcher.Constraint("Horizontal", 0))
sketch8.addConstraint(Sketcher.Constraint("Vertical", 1))
sketch8.addConstraint(Sketcher.Constraint("Horizontal", 2))
sketch8.addConstraint(Sketcher.Constraint("Vertical", 3))
sketch8.addConstraint(Sketcher.Constraint("DistanceY", 1, 2, 1, 1, Q("4.944998 mm")))
sketch8.addConstraint(Sketcher.Constraint("DistanceX", 0, 2, 0, 1, Q("6.034367 mm")))
sketch8.addConstraint(Sketcher.Constraint("DistanceX", 0, 2, -1, 1, Q("3.219462 mm")))
sketch8.addConstraint(Sketcher.Constraint("DistanceY", -1, 1, 0, 2, Q("1.787994 mm")))
pad7 = doc.addObject("PartDesign::Pad", "Pad006")
body5.addObject(pad7)
pad7.Profile = sketch8
pad7.setExpression("Length", "Params.pad7_length")
body6 = doc.addObject("PartDesign::Body", "Body005")

sketch9 = doc.addObject("Sketcher::SketchObject", "Sketch008")
body6.addObject(sketch9)
sketch9.AttachmentSupport = (doc.getObject("YZ_Plane005"), [""])
sketch9.MapMode = "FlatFace"
sketch9.AttachmentOffset = App.Placement(App.Vector(0, 0, 9.5), App.Rotation())
add_polygon(sketch9, [(2.7, 1.6), (-3, 1.6), (-3, -3), (2.7, -3)])
sketch9.addConstraint(Sketcher.Constraint("Horizontal", 0))
sketch9.addConstraint(Sketcher.Constraint("Vertical", 1))
sketch9.addConstraint(Sketcher.Constraint("Horizontal", 2))
sketch9.addConstraint(Sketcher.Constraint("Vertical", 3))
sketch9.addConstraint(Sketcher.Constraint("DistanceX", 0, 2, 0, 1, Q("5.740605 mm")))
sketch9.addConstraint(Sketcher.Constraint("DistanceY", 1, 2, 1, 1, Q("4.626756 mm")))
sketch9.addConstraint(Sketcher.Constraint("DistanceX", -1, 1, 2, 2, Q("2.729829 mm")))
sketch9.addConstraint(Sketcher.Constraint("DistanceY", -1, 1, 0, 2, Q("1.618233 mm")))
pad8 = doc.addObject("PartDesign::Pad", "Pad007")
body6.addObject(pad8)
pad8.Profile = sketch9
pad8.setExpression("Length", "Params.pad8_length")
body7 = doc.addObject("PartDesign::Body", "Body006")

sketch10 = doc.addObject("Sketcher::SketchObject", "Sketch009")
body7.addObject(sketch10)
sketch10.AttachmentSupport = (doc.getObject("YZ_Plane006"), [""])
sketch10.MapMode = "FlatFace"
sketch10.AttachmentOffset = App.Placement(App.Vector(0, 0, 14), App.Rotation())
sketch10.addGeometry(Part.Circle(App.Vector(0, -0.1, 0), App.Vector(0, 0, 1), 2), False)
sketch10.addConstraint(Sketcher.Constraint("PointOnObject", 0, 3, -2))
sketch10.addConstraint(Sketcher.Constraint("DistanceY", 0, 3, -1, 1, Q("0.1 mm")))
sketch10.addConstraint(Sketcher.Constraint("Diameter", 0, Q("3.947792 mm")))
pad9 = doc.addObject("PartDesign::Pad", "Pad008")
body7.addObject(pad9)
pad9.Profile = sketch10
pad9.setExpression("Length", "Params.pad9_length")
pad9.Midplane = True

sketch11 = doc.addObject("Sketcher::SketchObject", "Sketch010")
body7.addObject(sketch11)
sketch11.AttachmentSupport = (doc.getObject("YZ_Plane006"), [""])
sketch11.MapMode = "FlatFace"
sketch11.AttachmentOffset = App.Placement(App.Vector(0, 0, 16), App.Rotation())
sketch11.addGeometry(Part.LineSegment(App.Vector(1.7, -0.1, 0), App.Vector(-1.7, -0.1, 0)), False)
sketch11.addGeometry(Part.ArcOfCircle(Part.Circle(App.Vector(0, -0.1, 0), App.Vector(0, 0, 1), 1.7), math.radians(180), math.radians(360)), False)
sketch11.addGeometry(Part.LineSegment(App.Vector(1.7, -0.1, 0), App.Vector(-1.7, -0.1, 0)), True)
sketch11.addConstraint(Sketcher.Constraint("Coincident", 0, 1, 1, 2))
sketch11.addConstraint(Sketcher.Constraint("Coincident", 1, 1, 0, 2))
sketch11.addConstraint(Sketcher.Constraint("Horizontal", 0))
sketch11.addConstraint(Sketcher.Constraint("Horizontal", 2))
sketch11.addConstraint(Sketcher.Constraint("Coincident", 2, 1, 0, 1))
sketch11.addConstraint(Sketcher.Constraint("PointOnObject", 1, 3, -2))
sketch11.addConstraint(Sketcher.Constraint("Horizontal", 1, 3, 0, 1))
sketch11.addConstraint(Sketcher.Constraint("Equal", 0, 2))
sketch11.addConstraint(Sketcher.Constraint("DistanceY", 1, 3, -1, 1, Q("0.1 mm")))
sketch11.addConstraint(Sketcher.Constraint("Radius", 1, Q("1.740271 mm")))
revolution2 = doc.addObject("PartDesign::Revolution", "Revolution001")
body7.addObject(revolution2)
revolution2.Profile = sketch11
revolution2.ReferenceAxis = (sketch11, ["Axis0"])
revolution2.setExpression("Angle", "Params.revolution2_angle")

doc.recompute()
